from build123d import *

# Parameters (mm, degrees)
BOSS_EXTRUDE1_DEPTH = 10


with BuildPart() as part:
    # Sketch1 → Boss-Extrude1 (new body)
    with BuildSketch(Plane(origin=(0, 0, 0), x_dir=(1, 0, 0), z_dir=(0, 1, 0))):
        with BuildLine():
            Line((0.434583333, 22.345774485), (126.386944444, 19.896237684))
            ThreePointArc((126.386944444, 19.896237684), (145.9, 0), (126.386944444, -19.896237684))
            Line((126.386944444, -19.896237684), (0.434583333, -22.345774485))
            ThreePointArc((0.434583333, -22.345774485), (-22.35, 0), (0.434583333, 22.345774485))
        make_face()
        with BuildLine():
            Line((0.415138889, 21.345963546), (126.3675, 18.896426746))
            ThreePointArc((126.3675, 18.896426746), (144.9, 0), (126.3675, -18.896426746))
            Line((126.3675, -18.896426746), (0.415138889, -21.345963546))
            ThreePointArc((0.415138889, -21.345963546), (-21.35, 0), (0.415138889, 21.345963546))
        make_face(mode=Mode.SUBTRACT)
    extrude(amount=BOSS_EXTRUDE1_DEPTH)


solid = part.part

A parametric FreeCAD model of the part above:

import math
import FreeCAD as App
import Part
import Sketcher
Q = App.Units.Quantity

doc = App.newDocument("Part")
body = doc.addObject("PartDesign::Body", "Body")

# Sketch on XZ plane
sketch1 = doc.addObject("Sketcher::SketchObject", "Sketch")
body.addObject(sketch1)
sketch1.AttachmentSupport = (doc.XZ_Plane, [""])
sketch1.MapMode = "FlatFace"
sketch1.addGeometry([
    Part.LineSegment(App.Vector(126, -20, 0), App.Vector(0, -22, 0)),  # 0
    Part.ArcOfCircle(Part.Circle(App.Vector(0, 0, 0), App.Vector(0, 0, 1), 22), math.radians(89), math.radians(271)),  # 1
    Part.LineSegment(App.Vector(0, 22, 0), App.Vector(126, 20, 0)),  # 2
    Part.ArcOfCircle(Part.Circle(App.Vector(126, 0, 0), App.Vector(0, 0, 1), 20), math.radians(-89), math.radians(89)),  # 3
    Part.LineSegment(App.Vector(0, -21, 0), App.Vector(126, -19, 0)),  # 4
    Part.ArcOfCircle(Part.Circle(App.Vector(126, 0, 0), App.Vector(0, 0, 1), 19), math.radians(-89), math.radians(89)),  # 5
    Part.LineSegment(App.Vector(126, 19, 0), App.Vector(0, 21, 0)),  # 6
    Part.ArcOfCircle(Part.Circle(App.Vector(0, 0, 0), App.Vector(0, 0, 1), 21), math.radians(89), math.radians(271)),  # 7
], False)
sketch1.addConstraint([
    Sketcher.Constraint("Tangent", 0, 2, 1, 2),
    Sketcher.Constraint("Tangent", 1, 1, 2, 1),
    Sketcher.Constraint("Tangent", 2, 2, 3, 2),
    Sketcher.Constraint("Tangent", 3, 1, 0, 1),
    Sketcher.Constraint("Tangent", 4, 2, 5, 1),
    Sketcher.Constraint("Tangent", 5, 2, 6, 1),
    Sketcher.Constraint("Tangent", 6, 2, 7, 1),
    Sketcher.Constraint("Tangent", 7, 2, 4, 1),
    Sketcher.Constraint("Coincident", 1, 3, -1, 1),
    Sketcher.Constraint("Coincident", 7, 3, -1, 1),
    Sketcher.Constraint("Coincident", 5, 3, 3, 3),
    Sketcher.Constraint("PointOnObject", 3, 3, -1),
    Sketcher.Constraint("Parallel", 0, 4),
    Sketcher.Constraint("Radius", 3, Q("19.9 mm")),
    Sketcher.Constraint("Radius", 5, Q("18.9 mm")),
    Sketcher.Constraint("Radius", 1, Q("22.35 mm")),
    Sketcher.Constraint("DistanceX", -1, 1, 3, 3, Q("126 mm")),
])
pad1 = doc.addObject("PartDesign::Pad", "Pad")
body.addObject(pad1)
pad1.Profile = sketch1
pad1.Length = 10
pad1.Reversed = True

doc.recompute()
